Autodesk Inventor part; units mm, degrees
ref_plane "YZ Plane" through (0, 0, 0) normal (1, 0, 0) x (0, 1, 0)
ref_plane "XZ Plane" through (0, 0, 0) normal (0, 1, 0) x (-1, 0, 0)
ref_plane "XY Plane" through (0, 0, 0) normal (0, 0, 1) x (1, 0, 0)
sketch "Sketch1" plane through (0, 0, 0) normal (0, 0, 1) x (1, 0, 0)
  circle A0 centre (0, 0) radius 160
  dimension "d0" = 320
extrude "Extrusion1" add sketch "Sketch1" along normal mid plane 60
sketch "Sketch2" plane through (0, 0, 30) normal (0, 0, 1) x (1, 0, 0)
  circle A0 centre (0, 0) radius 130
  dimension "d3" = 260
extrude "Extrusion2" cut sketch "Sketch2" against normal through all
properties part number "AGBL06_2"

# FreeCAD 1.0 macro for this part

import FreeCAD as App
import Part
import Sketcher
Q = App.Units.Quantity

doc = App.newDocument("Part")
body = doc.addObject("PartDesign::Body", "Body")

# Sketch on XY plane
sketch1 = body.newObject("Sketcher::SketchObject", "Sketch")
sketch1.AttachmentSupport = (doc.getObject("XY_Plane"), [""])
sketch1.MapMode = "FlatFace"
sketch1.addGeometry(Part.Circle(App.Vector(0, 0, 0), App.Vector(0, 0, 1), 160), False)
sketch1.addConstraint([
    Sketcher.Constraint("Coincident", 0, 3, -1, 1),
    Sketcher.Constraint("Diameter", 0, Q("320 mm")),
])
pad1 = body.newObject("PartDesign::Pad", "Pad")
pad1.Profile = sketch1
pad1.Length = 60
pad1.Midplane = True

# Sketch on XY plane
sketch2 = body.newObject("Sketcher::SketchObject", "Sketch001")
sketch2.AttachmentSupport = (doc.getObject("XY_Plane"), [""])
sketch2.MapMode = "FlatFace"
sketch2.AttachmentOffset = App.Placement(App.Vector(0, 0, 30), App.Rotation())
sketch2.addGeometry(Part.Circle(App.Vector(0, 0, 0), App.Vector(0, 0, 1), 130), False)
sketch2.addConstraint([
    Sketcher.Constraint("Coincident", 0, 3, -1, 1),
    Sketcher.Constraint("Diameter", 0, Q("260 mm")),
])
pocket1 = body.newObject("PartDesign::Pocket", "Pocket")
pocket1.Profile = sketch2
pocket1.Type = "ThroughAll"

doc.recompute()
